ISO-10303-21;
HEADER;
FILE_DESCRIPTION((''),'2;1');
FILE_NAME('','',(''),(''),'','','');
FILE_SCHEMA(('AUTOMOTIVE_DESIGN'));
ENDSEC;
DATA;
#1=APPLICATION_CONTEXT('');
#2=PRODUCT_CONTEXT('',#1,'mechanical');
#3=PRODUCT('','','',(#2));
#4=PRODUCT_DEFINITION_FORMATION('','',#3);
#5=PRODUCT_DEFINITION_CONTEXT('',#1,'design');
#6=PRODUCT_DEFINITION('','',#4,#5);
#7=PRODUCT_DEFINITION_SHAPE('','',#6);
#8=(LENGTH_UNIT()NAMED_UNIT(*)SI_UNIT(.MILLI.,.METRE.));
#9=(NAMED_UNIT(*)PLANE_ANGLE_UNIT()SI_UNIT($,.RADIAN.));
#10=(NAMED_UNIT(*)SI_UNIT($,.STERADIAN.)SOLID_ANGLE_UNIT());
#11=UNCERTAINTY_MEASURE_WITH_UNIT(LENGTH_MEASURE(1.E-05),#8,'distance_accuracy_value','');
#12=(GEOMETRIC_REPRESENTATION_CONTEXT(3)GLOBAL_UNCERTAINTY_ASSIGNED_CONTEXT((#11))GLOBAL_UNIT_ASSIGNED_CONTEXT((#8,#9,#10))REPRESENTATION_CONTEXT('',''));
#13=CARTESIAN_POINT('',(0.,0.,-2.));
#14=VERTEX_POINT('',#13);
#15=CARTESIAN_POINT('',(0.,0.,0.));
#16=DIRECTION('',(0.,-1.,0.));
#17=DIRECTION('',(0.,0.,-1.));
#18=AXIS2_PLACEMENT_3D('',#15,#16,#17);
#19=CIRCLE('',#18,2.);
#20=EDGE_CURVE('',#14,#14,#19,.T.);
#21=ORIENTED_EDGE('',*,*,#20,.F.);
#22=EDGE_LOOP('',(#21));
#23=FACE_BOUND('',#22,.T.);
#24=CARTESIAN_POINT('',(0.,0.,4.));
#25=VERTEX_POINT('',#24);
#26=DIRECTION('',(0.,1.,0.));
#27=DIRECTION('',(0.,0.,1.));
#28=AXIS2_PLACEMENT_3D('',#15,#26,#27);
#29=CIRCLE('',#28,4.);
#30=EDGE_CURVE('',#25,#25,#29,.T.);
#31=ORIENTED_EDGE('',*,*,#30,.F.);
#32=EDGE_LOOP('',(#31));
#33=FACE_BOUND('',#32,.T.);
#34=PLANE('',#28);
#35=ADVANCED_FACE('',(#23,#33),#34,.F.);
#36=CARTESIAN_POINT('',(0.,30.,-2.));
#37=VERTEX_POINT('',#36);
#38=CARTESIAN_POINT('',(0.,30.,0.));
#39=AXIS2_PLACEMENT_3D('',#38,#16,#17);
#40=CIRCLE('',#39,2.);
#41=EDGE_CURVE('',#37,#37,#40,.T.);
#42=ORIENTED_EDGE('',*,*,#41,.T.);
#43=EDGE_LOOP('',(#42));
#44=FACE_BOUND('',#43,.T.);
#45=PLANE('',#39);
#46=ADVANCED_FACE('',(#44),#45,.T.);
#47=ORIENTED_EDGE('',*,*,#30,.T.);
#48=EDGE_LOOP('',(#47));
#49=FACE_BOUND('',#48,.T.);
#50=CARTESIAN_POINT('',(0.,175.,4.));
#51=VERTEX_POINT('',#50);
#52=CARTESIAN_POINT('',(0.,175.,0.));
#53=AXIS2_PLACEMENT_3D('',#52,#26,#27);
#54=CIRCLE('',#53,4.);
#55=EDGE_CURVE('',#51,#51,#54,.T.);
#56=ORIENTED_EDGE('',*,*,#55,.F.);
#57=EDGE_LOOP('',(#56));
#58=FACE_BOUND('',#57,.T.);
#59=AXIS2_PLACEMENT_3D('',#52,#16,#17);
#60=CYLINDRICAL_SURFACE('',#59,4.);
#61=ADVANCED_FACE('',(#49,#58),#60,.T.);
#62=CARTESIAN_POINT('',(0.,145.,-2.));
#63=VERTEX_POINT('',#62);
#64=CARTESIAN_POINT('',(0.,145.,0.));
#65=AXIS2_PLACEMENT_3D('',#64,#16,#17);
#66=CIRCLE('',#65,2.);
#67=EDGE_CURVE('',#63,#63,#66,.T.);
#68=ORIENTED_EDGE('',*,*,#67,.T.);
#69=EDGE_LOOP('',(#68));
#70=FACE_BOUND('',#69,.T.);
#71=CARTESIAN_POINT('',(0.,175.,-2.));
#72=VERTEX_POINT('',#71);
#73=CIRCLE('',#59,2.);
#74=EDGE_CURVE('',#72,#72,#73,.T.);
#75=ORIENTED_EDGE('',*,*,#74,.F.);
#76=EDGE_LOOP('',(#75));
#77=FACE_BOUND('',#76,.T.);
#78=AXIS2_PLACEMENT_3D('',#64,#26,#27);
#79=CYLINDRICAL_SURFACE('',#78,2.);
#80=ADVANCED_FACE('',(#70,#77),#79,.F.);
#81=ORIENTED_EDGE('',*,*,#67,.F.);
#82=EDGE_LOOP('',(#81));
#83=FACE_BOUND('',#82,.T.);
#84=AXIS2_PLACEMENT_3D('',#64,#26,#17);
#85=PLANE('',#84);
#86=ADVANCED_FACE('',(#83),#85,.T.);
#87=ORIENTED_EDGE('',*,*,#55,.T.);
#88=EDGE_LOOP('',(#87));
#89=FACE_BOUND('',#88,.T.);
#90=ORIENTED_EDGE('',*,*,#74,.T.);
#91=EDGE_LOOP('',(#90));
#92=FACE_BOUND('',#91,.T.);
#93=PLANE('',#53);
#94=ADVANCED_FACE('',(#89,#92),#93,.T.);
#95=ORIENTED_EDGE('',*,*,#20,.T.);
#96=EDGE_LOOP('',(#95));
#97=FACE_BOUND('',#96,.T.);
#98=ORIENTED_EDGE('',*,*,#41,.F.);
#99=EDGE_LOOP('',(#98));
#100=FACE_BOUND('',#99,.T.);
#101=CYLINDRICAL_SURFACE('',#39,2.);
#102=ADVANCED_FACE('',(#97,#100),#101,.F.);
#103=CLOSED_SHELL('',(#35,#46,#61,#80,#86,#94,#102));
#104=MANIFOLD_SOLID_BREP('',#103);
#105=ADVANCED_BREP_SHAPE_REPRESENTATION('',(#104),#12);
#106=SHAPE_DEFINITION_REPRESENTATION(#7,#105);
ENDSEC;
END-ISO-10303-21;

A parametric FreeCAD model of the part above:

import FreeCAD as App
import Part
import Sketcher
Q = App.Units.Quantity

doc = App.newDocument("Part")
body = doc.addObject("PartDesign::Body", "Body")

sketch1 = body.newObject("Sketcher::SketchObject", "Sketch")
sketch1.AttachmentSupport = (doc.getObject("XZ_Plane"), [""])
sketch1.MapMode = "FlatFace"
sketch1.addGeometry(Part.Circle(App.Vector(0, 0, 0), App.Vector(0, 0, 1), 4), False)
sketch1.addConstraint([
    Sketcher.Constraint("Coincident", 0, 3, -1, 1),
    Sketcher.Constraint("Diameter", 0, Q("8 mm")),
])
pad1 = body.newObject("PartDesign::Pad", "Pad")
pad1.Profile = sketch1
pad1.Length = 175
pad1.Reversed = True

sketch2 = body.newObject("Sketcher::SketchObject", "Sketch001")
sketch2.AttachmentSupport = (doc.getObject("XZ_Plane"), [""])
sketch2.MapMode = "FlatFace"
sketch2.addGeometry(Part.Circle(App.Vector(0, 0, 0), App.Vector(0, 0, 1), 2), False)
sketch2.addConstraint([
    Sketcher.Constraint("Coincident", 0, 3, -1, 1),
    Sketcher.Constraint("Diameter", 0, Q("4 mm")),
])
pocket1 = body.newObject("PartDesign::Pocket", "Pocket")
pocket1.Profile = sketch2
pocket1.Length = 30
doc.recompute()

datumplane = body.newObject("PartDesign::Plane", "DatumPlane")
datumplane.AttachmentSupport = (doc.getObject("XZ_Plane"), [""])
datumplane.MapMode = "FlatFace"
datumplane.AttachmentOffset = App.Placement(App.Vector(0, 0, -87.5), App.Rotation())
mirrored = body.newObject("PartDesign::Mirrored", "Mirrored")
mirrored.Originals = [pocket1]
mirrored.MirrorPlane = (datumplane, [""])
body.Tip = mirrored

doc.recompute()
